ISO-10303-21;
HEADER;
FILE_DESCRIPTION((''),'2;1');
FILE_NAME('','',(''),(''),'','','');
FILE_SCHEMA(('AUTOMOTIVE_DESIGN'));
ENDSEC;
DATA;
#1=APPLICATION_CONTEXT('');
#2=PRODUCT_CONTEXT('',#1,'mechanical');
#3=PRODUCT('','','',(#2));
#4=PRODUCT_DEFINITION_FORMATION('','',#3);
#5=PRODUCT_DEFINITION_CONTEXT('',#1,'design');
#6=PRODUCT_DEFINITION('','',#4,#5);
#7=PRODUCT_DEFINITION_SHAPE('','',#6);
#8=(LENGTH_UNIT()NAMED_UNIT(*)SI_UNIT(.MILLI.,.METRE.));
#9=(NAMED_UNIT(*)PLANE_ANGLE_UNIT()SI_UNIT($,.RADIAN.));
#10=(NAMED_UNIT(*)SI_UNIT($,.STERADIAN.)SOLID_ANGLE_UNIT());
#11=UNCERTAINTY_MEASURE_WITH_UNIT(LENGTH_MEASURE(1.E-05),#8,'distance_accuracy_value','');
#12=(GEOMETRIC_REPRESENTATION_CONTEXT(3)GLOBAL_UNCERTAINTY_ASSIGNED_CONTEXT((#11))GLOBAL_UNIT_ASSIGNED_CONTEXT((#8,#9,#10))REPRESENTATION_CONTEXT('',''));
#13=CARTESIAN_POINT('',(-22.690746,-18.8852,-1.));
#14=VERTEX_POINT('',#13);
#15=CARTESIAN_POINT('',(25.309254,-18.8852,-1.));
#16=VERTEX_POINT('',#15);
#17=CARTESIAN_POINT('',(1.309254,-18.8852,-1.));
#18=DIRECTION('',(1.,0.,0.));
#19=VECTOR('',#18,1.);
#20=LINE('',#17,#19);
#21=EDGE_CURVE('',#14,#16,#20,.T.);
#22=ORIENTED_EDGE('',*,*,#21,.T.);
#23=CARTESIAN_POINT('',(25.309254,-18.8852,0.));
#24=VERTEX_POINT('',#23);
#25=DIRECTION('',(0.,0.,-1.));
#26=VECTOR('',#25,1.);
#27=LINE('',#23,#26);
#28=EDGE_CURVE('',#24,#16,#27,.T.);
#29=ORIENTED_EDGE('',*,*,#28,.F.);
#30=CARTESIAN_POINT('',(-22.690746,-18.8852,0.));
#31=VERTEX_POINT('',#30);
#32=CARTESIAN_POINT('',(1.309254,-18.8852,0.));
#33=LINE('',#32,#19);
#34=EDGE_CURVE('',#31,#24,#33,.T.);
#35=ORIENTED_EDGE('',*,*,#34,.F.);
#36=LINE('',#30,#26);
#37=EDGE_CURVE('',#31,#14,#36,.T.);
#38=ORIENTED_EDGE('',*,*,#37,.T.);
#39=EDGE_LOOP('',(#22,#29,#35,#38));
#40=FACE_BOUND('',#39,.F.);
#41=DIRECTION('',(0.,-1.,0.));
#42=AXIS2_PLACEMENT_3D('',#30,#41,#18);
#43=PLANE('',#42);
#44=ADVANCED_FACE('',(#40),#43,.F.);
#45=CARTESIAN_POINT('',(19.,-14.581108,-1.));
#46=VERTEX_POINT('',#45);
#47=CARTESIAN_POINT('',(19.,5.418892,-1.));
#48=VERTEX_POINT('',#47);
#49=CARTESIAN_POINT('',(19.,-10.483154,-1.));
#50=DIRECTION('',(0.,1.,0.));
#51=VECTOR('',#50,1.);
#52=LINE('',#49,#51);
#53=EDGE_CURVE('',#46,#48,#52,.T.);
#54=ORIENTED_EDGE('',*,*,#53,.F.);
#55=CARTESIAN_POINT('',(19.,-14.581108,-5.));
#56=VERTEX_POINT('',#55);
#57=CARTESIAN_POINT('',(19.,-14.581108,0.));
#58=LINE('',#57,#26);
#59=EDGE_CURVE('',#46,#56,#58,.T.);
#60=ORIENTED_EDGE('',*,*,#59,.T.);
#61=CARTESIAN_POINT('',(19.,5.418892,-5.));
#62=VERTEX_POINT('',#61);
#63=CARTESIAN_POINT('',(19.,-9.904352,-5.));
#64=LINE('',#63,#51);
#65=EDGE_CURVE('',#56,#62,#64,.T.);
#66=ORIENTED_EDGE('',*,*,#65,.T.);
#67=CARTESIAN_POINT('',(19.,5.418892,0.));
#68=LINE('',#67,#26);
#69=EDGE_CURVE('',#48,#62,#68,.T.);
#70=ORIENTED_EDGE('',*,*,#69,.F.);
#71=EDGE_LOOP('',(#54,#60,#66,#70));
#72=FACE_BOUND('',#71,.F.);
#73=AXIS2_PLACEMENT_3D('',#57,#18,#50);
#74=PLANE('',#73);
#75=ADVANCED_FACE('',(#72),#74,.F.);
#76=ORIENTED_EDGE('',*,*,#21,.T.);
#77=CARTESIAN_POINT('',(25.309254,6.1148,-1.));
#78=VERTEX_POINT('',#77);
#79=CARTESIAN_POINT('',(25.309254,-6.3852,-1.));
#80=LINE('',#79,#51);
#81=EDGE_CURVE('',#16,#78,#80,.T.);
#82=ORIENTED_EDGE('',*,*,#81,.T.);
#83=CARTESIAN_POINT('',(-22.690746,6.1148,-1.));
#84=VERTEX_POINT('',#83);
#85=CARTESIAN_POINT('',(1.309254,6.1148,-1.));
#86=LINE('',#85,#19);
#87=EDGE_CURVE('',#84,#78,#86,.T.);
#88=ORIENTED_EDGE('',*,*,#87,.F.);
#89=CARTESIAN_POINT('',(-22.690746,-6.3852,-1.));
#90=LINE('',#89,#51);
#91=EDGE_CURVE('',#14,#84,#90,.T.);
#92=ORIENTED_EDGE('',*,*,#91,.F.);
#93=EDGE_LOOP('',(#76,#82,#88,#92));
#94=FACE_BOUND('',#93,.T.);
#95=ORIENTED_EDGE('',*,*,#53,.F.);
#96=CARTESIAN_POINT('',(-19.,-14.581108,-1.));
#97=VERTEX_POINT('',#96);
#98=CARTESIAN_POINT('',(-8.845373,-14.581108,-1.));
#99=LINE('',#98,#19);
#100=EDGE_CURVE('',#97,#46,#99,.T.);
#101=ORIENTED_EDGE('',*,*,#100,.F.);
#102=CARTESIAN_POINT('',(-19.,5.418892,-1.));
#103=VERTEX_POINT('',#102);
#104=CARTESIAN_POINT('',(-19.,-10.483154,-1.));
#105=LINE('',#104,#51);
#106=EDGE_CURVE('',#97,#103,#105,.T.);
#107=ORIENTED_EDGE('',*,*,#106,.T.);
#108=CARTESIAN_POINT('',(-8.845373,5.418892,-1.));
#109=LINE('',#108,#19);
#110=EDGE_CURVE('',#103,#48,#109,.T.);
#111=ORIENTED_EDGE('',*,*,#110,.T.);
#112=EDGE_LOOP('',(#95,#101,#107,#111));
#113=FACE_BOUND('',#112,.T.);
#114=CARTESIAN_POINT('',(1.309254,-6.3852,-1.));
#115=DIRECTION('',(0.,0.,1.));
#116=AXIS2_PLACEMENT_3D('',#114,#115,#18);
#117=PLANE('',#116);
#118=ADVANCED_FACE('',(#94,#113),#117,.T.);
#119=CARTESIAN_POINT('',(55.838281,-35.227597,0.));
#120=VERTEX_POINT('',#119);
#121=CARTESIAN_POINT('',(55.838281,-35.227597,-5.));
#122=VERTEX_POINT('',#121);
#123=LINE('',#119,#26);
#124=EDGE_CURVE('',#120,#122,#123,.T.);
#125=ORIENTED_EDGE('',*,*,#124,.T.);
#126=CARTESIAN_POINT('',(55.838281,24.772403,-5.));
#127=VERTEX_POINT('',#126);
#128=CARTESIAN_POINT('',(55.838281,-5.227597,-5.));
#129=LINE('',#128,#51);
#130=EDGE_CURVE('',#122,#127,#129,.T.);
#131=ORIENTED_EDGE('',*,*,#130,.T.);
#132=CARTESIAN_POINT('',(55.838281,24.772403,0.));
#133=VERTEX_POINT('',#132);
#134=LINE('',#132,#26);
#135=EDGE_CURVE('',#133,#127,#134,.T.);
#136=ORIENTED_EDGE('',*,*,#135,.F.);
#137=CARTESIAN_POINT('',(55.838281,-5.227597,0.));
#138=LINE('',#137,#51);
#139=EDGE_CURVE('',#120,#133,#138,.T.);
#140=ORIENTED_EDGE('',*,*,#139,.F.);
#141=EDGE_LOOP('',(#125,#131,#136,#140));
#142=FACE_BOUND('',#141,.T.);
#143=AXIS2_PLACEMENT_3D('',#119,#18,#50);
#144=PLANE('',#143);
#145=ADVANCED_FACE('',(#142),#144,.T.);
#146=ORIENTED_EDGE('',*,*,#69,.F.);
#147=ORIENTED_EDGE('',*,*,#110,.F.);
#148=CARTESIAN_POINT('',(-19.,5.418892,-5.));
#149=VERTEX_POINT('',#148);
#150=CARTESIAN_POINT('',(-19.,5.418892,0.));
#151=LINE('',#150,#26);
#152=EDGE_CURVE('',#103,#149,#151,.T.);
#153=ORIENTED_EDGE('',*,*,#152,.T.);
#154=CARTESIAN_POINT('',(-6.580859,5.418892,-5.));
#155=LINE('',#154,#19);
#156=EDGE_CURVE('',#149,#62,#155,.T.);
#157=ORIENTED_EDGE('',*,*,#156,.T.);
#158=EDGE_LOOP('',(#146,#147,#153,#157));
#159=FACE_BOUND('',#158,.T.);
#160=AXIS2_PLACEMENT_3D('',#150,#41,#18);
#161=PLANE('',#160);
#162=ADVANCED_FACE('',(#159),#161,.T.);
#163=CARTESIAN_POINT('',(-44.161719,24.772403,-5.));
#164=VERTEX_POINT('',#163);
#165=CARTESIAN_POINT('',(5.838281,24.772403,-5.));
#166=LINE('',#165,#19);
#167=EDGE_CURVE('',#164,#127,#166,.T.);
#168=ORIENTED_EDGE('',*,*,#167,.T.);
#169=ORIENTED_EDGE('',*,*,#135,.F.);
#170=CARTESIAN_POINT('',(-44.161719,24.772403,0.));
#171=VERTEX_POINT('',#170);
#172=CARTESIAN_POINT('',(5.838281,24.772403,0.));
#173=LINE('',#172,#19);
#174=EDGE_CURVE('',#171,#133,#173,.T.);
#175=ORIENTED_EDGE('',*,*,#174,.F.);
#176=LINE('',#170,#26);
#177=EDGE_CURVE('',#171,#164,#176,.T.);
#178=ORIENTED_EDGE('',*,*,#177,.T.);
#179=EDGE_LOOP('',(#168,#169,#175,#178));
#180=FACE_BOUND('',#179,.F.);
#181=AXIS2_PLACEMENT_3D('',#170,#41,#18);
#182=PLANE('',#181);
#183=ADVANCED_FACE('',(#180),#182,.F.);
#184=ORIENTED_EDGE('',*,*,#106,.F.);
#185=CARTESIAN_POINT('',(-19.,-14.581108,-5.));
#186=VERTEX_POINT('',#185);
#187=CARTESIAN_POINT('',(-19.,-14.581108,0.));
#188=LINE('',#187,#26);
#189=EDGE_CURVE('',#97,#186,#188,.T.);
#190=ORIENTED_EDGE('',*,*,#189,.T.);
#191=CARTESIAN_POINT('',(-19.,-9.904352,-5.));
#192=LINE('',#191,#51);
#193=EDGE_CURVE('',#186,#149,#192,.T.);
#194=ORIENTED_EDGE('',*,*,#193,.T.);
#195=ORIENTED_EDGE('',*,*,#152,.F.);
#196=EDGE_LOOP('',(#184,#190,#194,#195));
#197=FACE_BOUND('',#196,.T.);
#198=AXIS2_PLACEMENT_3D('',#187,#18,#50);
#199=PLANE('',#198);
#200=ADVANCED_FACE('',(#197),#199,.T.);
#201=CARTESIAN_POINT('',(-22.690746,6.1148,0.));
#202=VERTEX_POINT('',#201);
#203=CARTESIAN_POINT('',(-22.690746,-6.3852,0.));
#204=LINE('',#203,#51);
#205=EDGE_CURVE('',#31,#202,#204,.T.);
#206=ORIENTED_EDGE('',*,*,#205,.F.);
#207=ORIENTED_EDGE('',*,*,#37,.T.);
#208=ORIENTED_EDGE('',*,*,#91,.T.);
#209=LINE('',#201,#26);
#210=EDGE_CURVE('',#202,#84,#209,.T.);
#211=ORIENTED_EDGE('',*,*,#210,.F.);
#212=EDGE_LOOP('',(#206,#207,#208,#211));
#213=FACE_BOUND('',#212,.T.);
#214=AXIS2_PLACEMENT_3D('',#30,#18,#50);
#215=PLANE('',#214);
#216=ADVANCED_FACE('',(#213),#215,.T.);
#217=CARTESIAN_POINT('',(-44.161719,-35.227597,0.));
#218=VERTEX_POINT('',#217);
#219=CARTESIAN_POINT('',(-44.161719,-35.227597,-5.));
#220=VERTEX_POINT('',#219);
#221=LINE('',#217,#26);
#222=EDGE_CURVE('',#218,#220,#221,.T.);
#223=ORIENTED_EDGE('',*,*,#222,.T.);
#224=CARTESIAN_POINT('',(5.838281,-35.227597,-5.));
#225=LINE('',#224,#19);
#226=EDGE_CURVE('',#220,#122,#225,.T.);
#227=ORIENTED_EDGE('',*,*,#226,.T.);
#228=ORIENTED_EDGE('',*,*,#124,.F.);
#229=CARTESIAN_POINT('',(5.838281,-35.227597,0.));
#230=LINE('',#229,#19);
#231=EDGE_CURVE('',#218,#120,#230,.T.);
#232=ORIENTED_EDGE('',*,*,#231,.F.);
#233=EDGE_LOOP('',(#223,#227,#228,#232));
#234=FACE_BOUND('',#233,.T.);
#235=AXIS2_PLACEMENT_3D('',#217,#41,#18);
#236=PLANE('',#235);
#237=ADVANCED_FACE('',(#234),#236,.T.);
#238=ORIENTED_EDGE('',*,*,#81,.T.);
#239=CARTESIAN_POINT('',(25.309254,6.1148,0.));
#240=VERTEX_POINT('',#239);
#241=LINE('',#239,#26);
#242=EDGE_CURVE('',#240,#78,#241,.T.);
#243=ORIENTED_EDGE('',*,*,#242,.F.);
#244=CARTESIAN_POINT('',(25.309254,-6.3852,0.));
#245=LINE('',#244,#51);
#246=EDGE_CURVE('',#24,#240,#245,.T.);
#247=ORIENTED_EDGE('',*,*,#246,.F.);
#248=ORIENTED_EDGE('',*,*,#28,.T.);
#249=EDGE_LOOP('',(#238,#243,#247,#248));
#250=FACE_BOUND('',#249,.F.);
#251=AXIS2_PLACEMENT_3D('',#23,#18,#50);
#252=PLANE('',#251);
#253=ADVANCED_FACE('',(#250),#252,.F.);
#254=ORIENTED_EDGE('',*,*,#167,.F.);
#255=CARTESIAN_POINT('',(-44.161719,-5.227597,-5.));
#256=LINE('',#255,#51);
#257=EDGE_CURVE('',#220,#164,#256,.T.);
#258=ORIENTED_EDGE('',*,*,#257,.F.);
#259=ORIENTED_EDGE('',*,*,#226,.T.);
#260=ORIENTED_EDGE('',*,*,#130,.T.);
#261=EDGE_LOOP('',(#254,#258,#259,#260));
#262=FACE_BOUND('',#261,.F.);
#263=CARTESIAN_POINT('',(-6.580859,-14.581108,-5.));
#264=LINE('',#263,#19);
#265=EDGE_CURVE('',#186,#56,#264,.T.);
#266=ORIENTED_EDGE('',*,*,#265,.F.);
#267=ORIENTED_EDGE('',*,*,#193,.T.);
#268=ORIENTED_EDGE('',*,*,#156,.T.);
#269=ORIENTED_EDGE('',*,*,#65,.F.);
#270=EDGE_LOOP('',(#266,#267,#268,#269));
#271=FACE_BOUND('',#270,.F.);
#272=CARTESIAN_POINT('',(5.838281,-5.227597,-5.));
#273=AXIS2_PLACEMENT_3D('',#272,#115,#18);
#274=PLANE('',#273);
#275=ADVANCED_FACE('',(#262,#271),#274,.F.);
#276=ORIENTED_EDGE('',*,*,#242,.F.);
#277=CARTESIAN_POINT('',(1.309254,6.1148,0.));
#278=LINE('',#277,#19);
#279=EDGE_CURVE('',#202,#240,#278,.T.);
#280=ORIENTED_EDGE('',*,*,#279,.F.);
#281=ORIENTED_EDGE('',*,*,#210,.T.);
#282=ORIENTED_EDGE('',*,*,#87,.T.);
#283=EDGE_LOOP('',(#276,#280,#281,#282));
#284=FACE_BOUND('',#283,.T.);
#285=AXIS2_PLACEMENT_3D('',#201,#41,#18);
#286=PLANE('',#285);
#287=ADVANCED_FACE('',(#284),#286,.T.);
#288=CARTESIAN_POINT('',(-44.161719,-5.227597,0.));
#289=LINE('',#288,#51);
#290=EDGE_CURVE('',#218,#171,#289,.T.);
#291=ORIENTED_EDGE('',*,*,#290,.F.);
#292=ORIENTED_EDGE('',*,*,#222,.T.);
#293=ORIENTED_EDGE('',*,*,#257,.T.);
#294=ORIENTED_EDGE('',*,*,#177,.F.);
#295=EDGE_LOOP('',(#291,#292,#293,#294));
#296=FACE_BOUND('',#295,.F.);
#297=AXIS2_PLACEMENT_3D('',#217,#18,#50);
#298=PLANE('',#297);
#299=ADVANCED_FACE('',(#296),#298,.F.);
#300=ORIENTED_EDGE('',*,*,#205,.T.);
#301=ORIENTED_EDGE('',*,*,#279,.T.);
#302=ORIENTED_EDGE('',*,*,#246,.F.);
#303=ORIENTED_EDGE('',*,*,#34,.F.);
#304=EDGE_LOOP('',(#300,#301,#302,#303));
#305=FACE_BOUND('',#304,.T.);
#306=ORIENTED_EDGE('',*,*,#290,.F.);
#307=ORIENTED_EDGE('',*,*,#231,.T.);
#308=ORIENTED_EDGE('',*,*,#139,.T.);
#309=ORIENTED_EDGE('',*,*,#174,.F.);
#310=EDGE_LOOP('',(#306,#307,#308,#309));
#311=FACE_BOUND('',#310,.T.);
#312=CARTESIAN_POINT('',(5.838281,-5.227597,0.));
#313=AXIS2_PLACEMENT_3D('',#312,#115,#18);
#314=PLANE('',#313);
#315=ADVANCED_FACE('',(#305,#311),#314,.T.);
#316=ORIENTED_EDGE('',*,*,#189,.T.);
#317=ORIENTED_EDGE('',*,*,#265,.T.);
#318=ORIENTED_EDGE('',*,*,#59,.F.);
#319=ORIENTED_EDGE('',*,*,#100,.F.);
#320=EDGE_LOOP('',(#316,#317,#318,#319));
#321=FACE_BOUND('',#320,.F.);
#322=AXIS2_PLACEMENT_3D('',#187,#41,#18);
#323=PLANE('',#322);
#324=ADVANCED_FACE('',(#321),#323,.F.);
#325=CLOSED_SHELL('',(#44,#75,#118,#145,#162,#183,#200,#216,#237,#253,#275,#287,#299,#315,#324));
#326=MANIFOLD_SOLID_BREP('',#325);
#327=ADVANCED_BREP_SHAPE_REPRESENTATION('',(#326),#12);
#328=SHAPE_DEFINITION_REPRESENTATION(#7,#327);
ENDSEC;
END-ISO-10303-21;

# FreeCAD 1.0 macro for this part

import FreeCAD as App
import Part
import Sketcher
Q = App.Units.Quantity


def add_polygon(sketch, points):
    """Adds a closed chain of lines whose ends are joined by coincident constraints."""
    first, n = sketch.GeometryCount, len(points)
    for a, b in zip(points, points[1:] + points[:1]):
        sketch.addGeometry(Part.LineSegment(App.Vector(*a, 0), App.Vector(*b, 0)), False)
    for i in range(n):
        sketch.addConstraint(Sketcher.Constraint("Coincident", first + i, 2, first + (i + 1) % n, 1))

doc = App.newDocument("Part")
body = doc.addObject("PartDesign::Body", "Body")

# Sketch on XY plane
sketch1 = body.newObject("Sketcher::SketchObject", "Sketch")
sketch1.AttachmentSupport = (doc.getObject("XY_Plane"), [""])
sketch1.MapMode = "FlatFace"
add_polygon(sketch1, [(-44, 25), (-44, -35), (56, -35), (56, 25)])  # lines 0-3
sketch1.addConstraint(Sketcher.Constraint("Vertical", 0))
sketch1.addConstraint(Sketcher.Constraint("Horizontal", 1))
sketch1.addConstraint(Sketcher.Constraint("Vertical", 2))
sketch1.addConstraint(Sketcher.Constraint("Horizontal", 3))
sketch1.addConstraint(Sketcher.Constraint("DistanceX", 1, 1, 1, 2, Q("100 mm")))
sketch1.addConstraint(Sketcher.Constraint("DistanceY", 0, 2, 0, 1, Q("60 mm")))
sketch1.addConstraint(Sketcher.Constraint("DistanceX", 0, 2, -1, 1, Q("44.161719 mm")))
sketch1.addConstraint(Sketcher.Constraint("DistanceY", 0, 2, -1, 1, Q("35.227597 mm")))
pad1 = body.newObject("PartDesign::Pad", "Pad")
pad1.Profile = sketch1
pad1.Length = 5
pad1.Reversed = True

# Sketch on XY plane
sketch2 = body.newObject("Sketcher::SketchObject", "Sketch001")
sketch2.AttachmentSupport = (doc.getObject("XY_Plane"), [""])
sketch2.MapMode = "FlatFace"
add_polygon(sketch2, [(-23, 6), (-23, -19), (25, -19), (25, 6)])  # lines 0-3
sketch2.addConstraint(Sketcher.Constraint("Vertical", 0))
sketch2.addConstraint(Sketcher.Constraint("Horizontal", 1))
sketch2.addConstraint(Sketcher.Constraint("Vertical", 2))
sketch2.addConstraint(Sketcher.Constraint("Horizontal", 3))
sketch2.addConstraint(Sketcher.Constraint("DistanceX", 1, 1, 1, 2, Q("48 mm")))
sketch2.addConstraint(Sketcher.Constraint("DistanceY", 0, 2, 0, 1, Q("25 mm")))
sketch2.addConstraint(Sketcher.Constraint("DistanceY", 0, 2, -1, 1, Q("18.8852 mm")))
sketch2.addConstraint(Sketcher.Constraint("DistanceX", 0, 2, -1, 1, Q("22.690746 mm")))
pocket1 = body.newObject("PartDesign::Pocket", "Pocket")
pocket1.Profile = sketch2
pocket1.Length = 1

# Sketch on XY plane
sketch3 = body.newObject("Sketcher::SketchObject", "Sketch002")
sketch3.AttachmentSupport = (doc.getObject("XY_Plane"), [""])
sketch3.MapMode = "FlatFace"
add_polygon(sketch3, [(-19, 5), (-19, -15), (19, -15), (19, 5)])  # lines 0-3
sketch3.addConstraint(Sketcher.Constraint("Vertical", 0))
sketch3.addConstraint(Sketcher.Constraint("Horizontal", 1))
sketch3.addConstraint(Sketcher.Constraint("Vertical", 2))
sketch3.addConstraint(Sketcher.Constraint("Horizontal", 3))
sketch3.addConstraint(Sketcher.Constraint("DistanceX", 1, 1, 1, 2, Q("38 mm")))
sketch3.addConstraint(Sketcher.Constraint("DistanceY", 0, 2, 0, 1, Q("20 mm")))
sketch3.addConstraint(Sketcher.Constraint("DistanceX", 0, 2, -1, 1, Q("19 mm")))
sketch3.addConstraint(Sketcher.Constraint("DistanceY", -1, 1, 2, 2, Q("5.418892 mm")))
pocket2 = body.newObject("PartDesign::Pocket", "Pocket001")
pocket2.Profile = sketch3
pocket2.Length = 10

doc.recompute()
